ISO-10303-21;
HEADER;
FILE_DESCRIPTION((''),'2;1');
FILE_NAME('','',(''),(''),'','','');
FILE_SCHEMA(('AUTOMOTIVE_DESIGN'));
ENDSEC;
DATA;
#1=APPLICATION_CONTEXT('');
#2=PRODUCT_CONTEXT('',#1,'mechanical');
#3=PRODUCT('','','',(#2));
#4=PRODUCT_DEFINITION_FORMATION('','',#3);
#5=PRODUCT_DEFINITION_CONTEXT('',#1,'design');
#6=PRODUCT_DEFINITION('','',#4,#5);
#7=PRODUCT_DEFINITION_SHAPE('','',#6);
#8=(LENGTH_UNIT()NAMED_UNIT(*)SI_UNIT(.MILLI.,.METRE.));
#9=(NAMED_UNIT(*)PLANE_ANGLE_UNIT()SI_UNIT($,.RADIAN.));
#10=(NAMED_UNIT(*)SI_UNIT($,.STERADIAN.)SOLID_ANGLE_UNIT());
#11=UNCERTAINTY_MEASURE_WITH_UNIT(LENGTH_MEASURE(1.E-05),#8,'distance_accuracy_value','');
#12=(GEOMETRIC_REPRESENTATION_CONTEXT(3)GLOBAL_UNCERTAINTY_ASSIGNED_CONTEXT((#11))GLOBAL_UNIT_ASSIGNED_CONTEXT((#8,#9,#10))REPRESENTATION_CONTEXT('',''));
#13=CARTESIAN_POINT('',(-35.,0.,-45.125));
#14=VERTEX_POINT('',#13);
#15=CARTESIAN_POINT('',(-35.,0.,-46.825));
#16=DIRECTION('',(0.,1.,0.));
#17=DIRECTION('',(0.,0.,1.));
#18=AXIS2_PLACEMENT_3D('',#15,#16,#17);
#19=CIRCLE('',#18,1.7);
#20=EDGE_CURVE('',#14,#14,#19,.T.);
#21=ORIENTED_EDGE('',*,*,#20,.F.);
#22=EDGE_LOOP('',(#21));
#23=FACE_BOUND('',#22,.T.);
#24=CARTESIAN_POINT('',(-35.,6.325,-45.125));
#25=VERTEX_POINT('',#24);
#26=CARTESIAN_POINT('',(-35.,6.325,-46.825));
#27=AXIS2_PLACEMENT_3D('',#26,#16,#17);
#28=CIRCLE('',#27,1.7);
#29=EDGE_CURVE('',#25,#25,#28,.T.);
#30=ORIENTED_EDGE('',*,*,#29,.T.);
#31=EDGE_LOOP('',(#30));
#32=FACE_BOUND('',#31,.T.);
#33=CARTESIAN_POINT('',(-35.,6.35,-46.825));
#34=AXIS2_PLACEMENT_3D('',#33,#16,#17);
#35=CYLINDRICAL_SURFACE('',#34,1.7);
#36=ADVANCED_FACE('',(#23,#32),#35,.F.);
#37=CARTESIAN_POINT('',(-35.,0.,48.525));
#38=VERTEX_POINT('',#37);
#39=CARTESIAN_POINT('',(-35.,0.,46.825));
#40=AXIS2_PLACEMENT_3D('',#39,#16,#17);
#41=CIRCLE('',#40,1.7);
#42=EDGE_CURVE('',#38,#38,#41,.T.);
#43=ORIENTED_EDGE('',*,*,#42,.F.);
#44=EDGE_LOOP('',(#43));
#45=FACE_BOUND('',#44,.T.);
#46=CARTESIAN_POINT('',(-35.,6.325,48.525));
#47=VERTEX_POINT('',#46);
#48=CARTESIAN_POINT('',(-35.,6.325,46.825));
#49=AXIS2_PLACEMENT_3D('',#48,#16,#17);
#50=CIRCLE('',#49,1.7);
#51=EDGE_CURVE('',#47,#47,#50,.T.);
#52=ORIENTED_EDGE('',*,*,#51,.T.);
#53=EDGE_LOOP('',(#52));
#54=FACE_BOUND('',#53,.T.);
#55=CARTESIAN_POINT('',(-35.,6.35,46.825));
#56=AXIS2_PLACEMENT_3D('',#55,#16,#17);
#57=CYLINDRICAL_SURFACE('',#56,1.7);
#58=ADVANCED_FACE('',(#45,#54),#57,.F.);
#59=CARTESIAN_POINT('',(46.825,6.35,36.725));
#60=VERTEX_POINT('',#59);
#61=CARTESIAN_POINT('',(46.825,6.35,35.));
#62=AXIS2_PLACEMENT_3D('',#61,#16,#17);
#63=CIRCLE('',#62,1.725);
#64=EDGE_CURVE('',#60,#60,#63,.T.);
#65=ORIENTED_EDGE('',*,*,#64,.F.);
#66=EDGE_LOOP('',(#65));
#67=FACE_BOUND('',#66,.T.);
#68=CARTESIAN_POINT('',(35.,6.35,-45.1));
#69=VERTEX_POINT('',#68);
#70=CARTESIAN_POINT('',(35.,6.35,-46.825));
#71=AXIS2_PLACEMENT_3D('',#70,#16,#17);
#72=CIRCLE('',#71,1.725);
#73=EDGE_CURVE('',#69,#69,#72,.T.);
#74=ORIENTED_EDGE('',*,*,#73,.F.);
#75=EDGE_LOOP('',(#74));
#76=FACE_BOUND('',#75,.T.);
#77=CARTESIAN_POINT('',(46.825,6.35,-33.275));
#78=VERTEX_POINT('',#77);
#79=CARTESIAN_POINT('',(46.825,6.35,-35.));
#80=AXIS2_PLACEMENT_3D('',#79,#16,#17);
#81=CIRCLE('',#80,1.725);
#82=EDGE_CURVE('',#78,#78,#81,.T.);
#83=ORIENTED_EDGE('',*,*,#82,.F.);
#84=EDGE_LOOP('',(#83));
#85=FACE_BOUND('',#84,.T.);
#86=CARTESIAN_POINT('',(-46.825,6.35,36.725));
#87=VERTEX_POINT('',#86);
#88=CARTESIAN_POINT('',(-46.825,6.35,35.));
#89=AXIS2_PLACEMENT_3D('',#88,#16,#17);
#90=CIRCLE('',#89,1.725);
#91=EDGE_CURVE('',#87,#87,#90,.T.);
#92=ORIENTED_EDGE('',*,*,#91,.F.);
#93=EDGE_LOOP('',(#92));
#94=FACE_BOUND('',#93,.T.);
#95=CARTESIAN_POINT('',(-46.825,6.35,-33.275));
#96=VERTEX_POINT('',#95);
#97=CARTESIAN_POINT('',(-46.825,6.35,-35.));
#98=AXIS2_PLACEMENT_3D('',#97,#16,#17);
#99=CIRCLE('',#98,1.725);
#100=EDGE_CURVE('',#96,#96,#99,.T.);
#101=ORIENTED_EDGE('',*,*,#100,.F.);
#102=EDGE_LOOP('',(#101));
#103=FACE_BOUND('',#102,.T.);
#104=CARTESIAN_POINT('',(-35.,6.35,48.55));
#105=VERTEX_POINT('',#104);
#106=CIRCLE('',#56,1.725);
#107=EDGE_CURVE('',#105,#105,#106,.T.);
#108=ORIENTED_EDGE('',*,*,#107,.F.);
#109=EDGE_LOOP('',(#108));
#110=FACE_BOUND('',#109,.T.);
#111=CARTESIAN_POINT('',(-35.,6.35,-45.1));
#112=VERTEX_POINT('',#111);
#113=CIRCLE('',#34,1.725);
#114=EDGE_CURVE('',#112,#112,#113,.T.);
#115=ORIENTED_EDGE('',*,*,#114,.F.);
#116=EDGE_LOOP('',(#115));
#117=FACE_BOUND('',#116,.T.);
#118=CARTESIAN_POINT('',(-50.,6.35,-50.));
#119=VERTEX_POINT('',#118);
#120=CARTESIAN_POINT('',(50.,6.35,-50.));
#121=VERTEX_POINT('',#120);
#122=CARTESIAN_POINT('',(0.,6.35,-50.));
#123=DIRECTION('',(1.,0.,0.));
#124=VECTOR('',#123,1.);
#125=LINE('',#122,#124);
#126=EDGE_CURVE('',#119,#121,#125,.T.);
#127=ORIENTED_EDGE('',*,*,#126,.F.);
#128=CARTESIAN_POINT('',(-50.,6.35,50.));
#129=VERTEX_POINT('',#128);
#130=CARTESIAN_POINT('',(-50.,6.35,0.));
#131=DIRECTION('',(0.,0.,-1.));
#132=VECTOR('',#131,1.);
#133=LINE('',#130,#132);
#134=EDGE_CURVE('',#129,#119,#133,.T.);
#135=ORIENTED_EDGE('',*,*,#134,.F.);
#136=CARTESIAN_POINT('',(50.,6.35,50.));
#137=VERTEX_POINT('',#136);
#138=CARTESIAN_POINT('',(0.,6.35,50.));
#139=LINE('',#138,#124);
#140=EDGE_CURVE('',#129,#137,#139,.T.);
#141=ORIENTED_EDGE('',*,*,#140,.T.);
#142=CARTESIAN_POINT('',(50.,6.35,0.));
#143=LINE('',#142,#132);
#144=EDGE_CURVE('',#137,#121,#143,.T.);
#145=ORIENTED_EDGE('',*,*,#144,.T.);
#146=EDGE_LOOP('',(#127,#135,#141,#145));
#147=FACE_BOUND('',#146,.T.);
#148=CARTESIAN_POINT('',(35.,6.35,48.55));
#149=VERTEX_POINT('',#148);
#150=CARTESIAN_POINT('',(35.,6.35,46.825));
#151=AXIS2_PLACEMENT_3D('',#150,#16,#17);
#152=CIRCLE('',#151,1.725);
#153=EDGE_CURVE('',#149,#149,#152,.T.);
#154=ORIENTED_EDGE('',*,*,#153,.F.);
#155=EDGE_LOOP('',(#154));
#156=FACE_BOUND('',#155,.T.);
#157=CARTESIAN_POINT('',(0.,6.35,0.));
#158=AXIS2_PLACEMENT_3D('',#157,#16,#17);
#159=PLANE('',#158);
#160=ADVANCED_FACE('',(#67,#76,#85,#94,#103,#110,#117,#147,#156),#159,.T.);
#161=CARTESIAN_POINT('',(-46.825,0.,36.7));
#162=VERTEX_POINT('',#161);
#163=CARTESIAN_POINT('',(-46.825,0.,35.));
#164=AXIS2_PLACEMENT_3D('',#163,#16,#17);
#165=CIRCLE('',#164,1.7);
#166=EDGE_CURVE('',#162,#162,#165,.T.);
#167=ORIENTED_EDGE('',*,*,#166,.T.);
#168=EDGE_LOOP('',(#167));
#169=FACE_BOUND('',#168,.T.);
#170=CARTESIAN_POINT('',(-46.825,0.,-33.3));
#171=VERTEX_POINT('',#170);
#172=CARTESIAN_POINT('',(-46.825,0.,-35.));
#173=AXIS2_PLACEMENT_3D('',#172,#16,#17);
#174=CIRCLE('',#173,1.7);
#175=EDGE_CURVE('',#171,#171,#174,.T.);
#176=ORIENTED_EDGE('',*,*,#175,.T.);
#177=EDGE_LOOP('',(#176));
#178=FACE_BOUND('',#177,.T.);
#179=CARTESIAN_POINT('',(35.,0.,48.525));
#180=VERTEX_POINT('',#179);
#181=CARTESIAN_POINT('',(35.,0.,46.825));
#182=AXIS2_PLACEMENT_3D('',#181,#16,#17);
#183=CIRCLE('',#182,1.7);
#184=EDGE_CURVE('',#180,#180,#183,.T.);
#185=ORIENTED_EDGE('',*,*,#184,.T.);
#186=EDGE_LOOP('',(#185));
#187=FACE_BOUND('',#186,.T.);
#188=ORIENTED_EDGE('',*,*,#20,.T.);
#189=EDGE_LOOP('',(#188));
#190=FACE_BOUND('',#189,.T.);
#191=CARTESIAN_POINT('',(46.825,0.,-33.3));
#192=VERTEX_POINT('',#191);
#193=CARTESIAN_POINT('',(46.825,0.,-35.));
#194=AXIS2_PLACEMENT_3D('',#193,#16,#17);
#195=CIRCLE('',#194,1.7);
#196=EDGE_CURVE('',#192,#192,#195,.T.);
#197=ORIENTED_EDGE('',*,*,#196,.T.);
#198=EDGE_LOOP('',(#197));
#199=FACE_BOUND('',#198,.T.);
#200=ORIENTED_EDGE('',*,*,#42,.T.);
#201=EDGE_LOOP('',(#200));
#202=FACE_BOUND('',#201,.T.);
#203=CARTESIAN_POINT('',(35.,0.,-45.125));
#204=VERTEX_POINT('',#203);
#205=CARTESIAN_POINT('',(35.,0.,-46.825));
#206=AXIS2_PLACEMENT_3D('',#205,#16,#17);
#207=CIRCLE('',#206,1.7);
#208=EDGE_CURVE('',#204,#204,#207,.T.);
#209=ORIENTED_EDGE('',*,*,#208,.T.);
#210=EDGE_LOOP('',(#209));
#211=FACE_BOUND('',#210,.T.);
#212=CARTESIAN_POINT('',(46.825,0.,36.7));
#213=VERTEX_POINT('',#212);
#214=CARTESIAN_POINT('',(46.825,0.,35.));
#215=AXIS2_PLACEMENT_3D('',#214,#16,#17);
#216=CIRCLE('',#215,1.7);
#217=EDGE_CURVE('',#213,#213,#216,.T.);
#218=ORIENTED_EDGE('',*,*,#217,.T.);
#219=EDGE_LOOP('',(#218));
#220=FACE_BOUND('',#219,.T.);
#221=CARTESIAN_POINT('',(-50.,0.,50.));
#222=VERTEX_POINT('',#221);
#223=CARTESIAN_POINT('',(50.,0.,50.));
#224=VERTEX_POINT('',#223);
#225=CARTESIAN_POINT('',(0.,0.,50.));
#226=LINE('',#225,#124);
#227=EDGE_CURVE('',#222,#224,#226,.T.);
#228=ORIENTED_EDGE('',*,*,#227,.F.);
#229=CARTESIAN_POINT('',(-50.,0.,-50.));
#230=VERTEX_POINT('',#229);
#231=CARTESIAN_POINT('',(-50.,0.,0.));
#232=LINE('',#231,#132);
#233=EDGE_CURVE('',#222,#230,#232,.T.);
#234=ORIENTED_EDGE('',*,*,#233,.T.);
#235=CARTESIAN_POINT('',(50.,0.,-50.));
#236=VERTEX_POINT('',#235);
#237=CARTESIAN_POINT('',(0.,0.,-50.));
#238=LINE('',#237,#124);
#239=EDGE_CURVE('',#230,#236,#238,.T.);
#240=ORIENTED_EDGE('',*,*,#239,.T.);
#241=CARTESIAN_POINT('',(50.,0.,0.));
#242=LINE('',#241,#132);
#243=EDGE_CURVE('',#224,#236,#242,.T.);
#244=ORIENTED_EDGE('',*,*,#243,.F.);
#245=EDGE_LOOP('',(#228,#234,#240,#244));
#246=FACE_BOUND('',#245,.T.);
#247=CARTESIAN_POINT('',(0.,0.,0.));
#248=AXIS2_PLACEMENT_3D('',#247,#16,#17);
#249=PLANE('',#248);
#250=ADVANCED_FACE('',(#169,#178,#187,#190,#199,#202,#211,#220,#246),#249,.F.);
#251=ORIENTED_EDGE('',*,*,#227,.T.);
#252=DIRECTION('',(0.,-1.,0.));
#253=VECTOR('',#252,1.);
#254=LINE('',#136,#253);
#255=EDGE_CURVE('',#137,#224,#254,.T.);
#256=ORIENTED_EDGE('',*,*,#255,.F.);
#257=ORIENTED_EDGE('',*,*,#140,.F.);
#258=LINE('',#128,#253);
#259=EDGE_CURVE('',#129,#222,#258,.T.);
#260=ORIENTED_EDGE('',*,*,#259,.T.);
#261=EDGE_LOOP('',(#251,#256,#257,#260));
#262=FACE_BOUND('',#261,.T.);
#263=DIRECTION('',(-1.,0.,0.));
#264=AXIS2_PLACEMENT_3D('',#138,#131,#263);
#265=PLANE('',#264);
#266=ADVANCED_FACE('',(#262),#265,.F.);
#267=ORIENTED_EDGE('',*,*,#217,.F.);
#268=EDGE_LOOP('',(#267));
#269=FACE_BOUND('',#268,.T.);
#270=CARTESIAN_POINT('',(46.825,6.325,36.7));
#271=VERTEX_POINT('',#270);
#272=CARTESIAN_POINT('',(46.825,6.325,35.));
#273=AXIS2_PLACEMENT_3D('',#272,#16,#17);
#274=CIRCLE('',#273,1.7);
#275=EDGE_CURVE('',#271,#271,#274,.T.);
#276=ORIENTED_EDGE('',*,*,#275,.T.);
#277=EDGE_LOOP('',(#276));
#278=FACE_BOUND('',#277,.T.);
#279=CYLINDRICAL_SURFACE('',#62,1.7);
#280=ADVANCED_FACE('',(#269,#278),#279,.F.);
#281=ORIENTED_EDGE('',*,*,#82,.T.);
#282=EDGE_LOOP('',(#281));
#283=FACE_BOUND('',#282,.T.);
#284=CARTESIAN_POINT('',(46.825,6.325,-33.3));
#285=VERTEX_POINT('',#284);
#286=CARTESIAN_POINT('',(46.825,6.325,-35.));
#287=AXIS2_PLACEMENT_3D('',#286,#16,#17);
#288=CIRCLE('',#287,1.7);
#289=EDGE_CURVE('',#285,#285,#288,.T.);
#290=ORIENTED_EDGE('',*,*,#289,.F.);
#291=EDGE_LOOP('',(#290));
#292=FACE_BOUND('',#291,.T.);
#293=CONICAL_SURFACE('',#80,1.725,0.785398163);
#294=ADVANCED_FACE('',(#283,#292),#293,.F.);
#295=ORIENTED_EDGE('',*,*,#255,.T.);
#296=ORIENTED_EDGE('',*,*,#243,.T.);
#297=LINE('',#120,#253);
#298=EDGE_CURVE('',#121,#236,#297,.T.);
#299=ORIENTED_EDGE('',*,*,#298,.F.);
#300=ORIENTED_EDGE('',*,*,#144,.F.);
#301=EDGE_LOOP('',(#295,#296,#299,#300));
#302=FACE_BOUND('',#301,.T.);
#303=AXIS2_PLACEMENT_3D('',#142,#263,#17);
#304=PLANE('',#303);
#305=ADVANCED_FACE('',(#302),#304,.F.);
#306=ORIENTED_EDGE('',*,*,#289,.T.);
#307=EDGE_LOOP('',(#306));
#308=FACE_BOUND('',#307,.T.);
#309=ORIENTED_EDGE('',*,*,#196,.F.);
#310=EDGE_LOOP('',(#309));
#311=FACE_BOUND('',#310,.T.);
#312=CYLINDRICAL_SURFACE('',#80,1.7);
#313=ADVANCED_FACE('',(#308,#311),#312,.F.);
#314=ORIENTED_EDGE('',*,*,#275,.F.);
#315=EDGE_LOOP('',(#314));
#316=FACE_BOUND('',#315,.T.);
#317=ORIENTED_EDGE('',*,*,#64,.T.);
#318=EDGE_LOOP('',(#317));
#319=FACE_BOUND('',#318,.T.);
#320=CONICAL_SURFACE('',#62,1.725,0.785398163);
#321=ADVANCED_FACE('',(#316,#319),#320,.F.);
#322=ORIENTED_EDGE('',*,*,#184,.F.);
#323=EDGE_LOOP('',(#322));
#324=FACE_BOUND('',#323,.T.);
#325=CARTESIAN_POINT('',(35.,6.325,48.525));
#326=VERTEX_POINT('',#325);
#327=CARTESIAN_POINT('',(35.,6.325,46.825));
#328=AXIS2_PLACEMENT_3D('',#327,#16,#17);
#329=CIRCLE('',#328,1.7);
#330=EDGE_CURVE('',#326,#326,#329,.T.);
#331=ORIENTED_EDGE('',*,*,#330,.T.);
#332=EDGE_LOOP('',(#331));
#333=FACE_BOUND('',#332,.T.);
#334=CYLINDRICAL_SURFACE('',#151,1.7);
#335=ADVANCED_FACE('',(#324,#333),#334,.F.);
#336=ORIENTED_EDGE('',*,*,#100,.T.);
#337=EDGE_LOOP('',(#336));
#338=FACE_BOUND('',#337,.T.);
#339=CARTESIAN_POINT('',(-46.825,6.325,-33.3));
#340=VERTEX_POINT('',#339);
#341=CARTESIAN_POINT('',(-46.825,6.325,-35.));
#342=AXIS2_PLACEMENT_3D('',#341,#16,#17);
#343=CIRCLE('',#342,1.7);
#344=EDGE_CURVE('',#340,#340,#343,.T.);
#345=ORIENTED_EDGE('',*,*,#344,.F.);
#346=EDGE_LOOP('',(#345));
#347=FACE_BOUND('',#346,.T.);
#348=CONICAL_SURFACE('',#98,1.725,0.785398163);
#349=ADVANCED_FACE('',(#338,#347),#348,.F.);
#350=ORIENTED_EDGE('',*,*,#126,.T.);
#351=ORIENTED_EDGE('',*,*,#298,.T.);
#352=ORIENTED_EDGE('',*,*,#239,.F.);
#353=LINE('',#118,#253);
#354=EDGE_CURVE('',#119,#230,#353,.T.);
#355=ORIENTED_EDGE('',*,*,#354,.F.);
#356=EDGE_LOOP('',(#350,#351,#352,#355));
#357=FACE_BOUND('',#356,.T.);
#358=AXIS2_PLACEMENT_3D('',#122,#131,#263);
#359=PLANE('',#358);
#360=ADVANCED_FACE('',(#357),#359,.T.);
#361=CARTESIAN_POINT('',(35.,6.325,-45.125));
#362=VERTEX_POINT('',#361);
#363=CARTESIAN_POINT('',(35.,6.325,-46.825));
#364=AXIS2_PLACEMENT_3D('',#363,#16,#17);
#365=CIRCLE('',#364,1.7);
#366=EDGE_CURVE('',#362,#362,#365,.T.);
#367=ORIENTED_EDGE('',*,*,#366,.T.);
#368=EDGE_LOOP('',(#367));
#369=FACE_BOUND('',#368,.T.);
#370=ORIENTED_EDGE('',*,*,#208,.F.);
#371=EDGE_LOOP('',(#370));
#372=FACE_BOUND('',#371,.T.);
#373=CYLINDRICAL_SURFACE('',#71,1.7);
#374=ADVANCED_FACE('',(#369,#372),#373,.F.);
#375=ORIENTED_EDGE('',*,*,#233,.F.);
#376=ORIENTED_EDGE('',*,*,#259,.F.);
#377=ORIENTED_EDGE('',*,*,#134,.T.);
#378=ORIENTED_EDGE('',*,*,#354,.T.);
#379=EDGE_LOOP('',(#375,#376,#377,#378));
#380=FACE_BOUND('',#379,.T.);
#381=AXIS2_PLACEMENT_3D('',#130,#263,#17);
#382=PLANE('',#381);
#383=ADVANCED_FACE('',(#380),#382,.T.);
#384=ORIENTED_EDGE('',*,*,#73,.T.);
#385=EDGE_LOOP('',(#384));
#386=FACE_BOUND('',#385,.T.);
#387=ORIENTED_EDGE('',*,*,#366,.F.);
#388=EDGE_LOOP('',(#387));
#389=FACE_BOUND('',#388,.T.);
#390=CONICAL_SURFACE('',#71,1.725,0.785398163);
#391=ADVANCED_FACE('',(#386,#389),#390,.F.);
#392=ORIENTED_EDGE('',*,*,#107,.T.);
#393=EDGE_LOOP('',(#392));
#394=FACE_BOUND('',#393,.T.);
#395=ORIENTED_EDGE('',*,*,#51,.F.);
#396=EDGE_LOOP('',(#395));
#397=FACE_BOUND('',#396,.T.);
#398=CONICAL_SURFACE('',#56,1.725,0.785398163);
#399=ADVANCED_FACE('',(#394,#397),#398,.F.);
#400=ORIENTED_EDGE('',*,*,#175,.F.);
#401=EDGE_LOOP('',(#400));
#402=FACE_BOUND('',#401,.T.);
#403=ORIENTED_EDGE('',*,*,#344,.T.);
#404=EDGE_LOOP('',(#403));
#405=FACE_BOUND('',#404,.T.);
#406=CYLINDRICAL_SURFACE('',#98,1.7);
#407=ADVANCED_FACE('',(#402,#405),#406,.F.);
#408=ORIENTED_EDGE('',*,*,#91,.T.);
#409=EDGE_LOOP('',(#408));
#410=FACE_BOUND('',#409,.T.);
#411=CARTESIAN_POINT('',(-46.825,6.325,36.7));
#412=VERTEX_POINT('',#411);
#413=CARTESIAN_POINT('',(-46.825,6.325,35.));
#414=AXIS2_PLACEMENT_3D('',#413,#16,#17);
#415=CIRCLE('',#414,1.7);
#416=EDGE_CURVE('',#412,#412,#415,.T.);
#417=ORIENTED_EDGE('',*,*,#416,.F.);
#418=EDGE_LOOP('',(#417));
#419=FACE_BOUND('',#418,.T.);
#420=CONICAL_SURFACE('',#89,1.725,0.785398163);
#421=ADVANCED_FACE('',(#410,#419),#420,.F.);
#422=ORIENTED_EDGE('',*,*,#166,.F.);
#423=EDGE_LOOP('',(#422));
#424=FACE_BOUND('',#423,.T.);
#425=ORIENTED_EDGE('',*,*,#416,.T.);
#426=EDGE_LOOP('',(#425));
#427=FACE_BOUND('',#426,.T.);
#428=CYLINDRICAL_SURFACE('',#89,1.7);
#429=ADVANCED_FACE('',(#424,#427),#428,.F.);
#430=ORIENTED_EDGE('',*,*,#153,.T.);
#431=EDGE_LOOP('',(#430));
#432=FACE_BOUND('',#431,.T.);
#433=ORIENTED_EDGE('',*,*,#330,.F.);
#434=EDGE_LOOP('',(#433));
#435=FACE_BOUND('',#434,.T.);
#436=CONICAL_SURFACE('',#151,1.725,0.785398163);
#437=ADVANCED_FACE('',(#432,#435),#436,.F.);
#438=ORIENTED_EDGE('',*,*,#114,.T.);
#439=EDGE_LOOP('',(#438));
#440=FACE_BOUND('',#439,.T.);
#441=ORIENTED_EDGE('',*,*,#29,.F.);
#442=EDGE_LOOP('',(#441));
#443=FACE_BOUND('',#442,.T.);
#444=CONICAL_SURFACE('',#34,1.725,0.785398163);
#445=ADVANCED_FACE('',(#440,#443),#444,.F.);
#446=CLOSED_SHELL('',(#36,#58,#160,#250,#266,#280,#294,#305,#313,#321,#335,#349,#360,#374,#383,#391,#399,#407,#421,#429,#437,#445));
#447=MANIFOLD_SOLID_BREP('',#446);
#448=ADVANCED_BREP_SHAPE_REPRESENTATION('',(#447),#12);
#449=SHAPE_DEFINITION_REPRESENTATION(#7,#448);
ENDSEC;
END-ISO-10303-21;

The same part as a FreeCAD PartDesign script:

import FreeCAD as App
import Part
import Sketcher
Q = App.Units.Quantity


def add_polygon(sketch, points):
    """Adds a closed chain of lines whose ends are joined by coincident constraints."""
    first, n = sketch.GeometryCount, len(points)
    for a, b in zip(points, points[1:] + points[:1]):
        sketch.addGeometry(Part.LineSegment(App.Vector(*a, 0), App.Vector(*b, 0)), False)
    for i in range(n):
        sketch.addConstraint(Sketcher.Constraint("Coincident", first + i, 2, first + (i + 1) % n, 1))

doc = App.newDocument("Part")
params = doc.addObject("Spreadsheet::Sheet", "Params")
for row, (alias, value) in enumerate([
    ("sketch1_width", "100 mm"),
    ("pad1_length", "6.35 mm"),
    ("sketch2_diameter", "3.4 mm"),
    ("hole_diameter", "3.4 mm"),
    ("hole_csink_diameter", "3.45 mm"),
], start=1):
    params.set(f"A{row}", alias)
    params.set(f"B{row}", "=" + value)
    params.setAlias(f"B{row}", alias)

body = doc.addObject("PartDesign::Body", "Body")

# Sketch on XZ plane
sketch1 = body.newObject("Sketcher::SketchObject", "Sketch")
sketch1.AttachmentSupport = (doc.getObject("XZ_Plane"), [""])
sketch1.MapMode = "FlatFace"
add_polygon(sketch1, [(-50, -50), (-50, 50), (50, 50), (50, -50)])  # lines 0-3
sketch1.addConstraint([
    Sketcher.Constraint("Vertical", 0),
    Sketcher.Constraint("Horizontal", 1),
    Sketcher.Constraint("Vertical", 2),
    Sketcher.Constraint("Horizontal", 3),
    Sketcher.Constraint("Symmetric", 0, 2, 2, 2, -1, 1),
    Sketcher.Constraint("Equal", 3, 0),
    Sketcher.Constraint("DistanceX", 1, 1, 1, 2, Q("100 mm")),
])
sketch1.setExpression("Constraints[10]", "Params.sketch1_width")
pad1 = body.newObject("PartDesign::Pad", "Pad")
pad1.Profile = sketch1
pad1.setExpression("Length", "Params.pad1_length")
pad1.Reversed = True

# Sketch on XZ plane
sketch2 = body.newObject("Sketcher::SketchObject", "Sketch001")
sketch2.AttachmentSupport = (doc.getObject("XZ_Plane"), [""])
sketch2.MapMode = "FlatFace"
sketch2.AttachmentOffset = App.Placement(App.Vector(0, 0, -6.35), App.Rotation())
sketch2.addGeometry([
    Part.Circle(App.Vector(-46.8, -35, 0), App.Vector(0, 0, 1), 1.7),  # 0
    Part.Circle(App.Vector(-35, -46.8, 0), App.Vector(0, 0, 1), 1.7),  # 1
    Part.Circle(App.Vector(35, -46.8, 0), App.Vector(0, 0, 1), 1.7),  # 2
    Part.Circle(App.Vector(46.8, -35, 0), App.Vector(0, 0, 1), 1.7),  # 3
    Part.Circle(App.Vector(46.8, 35, 0), App.Vector(0, 0, 1), 1.7),  # 4
    Part.Circle(App.Vector(35, 46.8, 0), App.Vector(0, 0, 1), 1.7),  # 5
    Part.Circle(App.Vector(-35, 46.8, 0), App.Vector(0, 0, 1), 1.7),  # 6
    Part.Circle(App.Vector(-46.8, 35, 0), App.Vector(0, 0, 1), 1.7),  # 7
], False)
sketch2.addConstraint([
    Sketcher.Constraint("Equal", 0, 1),
    Sketcher.Constraint("Equal", 1, 2),
    Sketcher.Constraint("Equal", 2, 3),
    Sketcher.Constraint("Equal", 3, 4),
    Sketcher.Constraint("Equal", 4, 5),
    Sketcher.Constraint("Equal", 5, 6),
    Sketcher.Constraint("Equal", 6, 7),
    Sketcher.Constraint("Symmetric", 0, 3, 4, 3, -1, 1),
    Sketcher.Constraint("Symmetric", 1, 3, 5, 3, -1, 1),
    Sketcher.Constraint("Symmetric", 2, 3, 6, 3, -1, 1),
    Sketcher.Constraint("Symmetric", 3, 3, 7, 3, -1, 1),
    Sketcher.Constraint("Symmetric", 1, 3, 2, 3, -2),
    Sketcher.Constraint("Symmetric", 0, 3, 3, 3, -2),
    Sketcher.Constraint("Diameter", 0, Q("3.4 mm")),
    Sketcher.Constraint("DistanceY", 0, 3, -1, 1, Q("35 mm")),
    Sketcher.Constraint("DistanceX", 1, 3, -1, 1, Q("35 mm")),
    Sketcher.Constraint("DistanceX", 0, 3, 3, 3, Q("93.65 mm")),
    Sketcher.Constraint("DistanceY", 2, 3, 5, 3, Q("93.65 mm")),
])
sketch2.setExpression("Constraints[13]", "Params.sketch2_diameter")
doc.recompute()
hole = body.newObject("PartDesign::Hole", "Hole")
hole.Profile = sketch2
hole.ThreadType = "None"
hole.setExpression("Diameter", "Params.hole_diameter")
hole.DepthType = "ThroughAll"
hole.HoleCutType = "Countersink"
hole.setExpression("HoleCutDiameter", "Params.hole_csink_diameter")
hole.HoleCutCountersinkAngle = 90
hole.Reversed = True

doc.recompute()
